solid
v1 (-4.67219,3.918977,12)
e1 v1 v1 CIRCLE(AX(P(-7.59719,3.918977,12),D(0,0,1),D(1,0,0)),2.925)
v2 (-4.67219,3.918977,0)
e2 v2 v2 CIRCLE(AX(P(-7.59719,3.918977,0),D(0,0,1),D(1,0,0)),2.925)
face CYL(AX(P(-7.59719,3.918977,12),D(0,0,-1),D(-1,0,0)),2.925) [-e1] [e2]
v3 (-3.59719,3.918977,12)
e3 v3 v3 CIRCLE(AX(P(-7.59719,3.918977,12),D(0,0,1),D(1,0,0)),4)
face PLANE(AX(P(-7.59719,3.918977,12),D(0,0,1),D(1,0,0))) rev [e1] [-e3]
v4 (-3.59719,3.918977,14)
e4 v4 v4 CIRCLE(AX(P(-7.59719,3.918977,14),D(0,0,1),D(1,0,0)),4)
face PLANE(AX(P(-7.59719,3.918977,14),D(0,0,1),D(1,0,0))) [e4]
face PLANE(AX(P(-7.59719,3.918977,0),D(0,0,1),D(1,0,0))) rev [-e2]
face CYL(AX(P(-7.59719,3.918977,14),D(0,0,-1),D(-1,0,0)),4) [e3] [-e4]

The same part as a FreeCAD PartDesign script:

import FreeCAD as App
import Part
import Sketcher

V = App.Vector

doc = App.newDocument("Part")
body = doc.addObject("PartDesign::Body", "Body")

sketch1 = body.newObject("Sketcher::SketchObject", "Sketch")
sketch1.AttachmentSupport = (doc.getObject("XY_Plane"), [""])
sketch1.MapMode = "FlatFace"
sketch1.addGeometry(Part.Circle(V(-7.6, 3.9, 0), V(0, 0, 1), 2.9), False)
sketch1.addConstraint([
    Sketcher.Constraint("Diameter", 0, 5.85),
    Sketcher.Constraint("DistanceX", 0, 3, -1, 1, 7.59719),
    Sketcher.Constraint("DistanceY", -1, 1, 0, 3, 3.918977),
])
pad1 = body.newObject("PartDesign::Pad", "Pad")
pad1.Profile = sketch1
pad1.Length = 12

sketch2 = body.newObject("Sketcher::SketchObject", "Sketch001")
sketch2.AttachmentSupport = (doc.getObject("XY_Plane"), [""])
sketch2.MapMode = "FlatFace"
sketch2.AttachmentOffset = App.Placement(V(0, 0, 12), App.Rotation())
sketch2.addGeometry(Part.Circle(V(-7.6, 3.9, 0), V(0, 0, 1), 4), False)
sketch2.addConstraint([
    Sketcher.Constraint("Diameter", 0, 8.0),
    Sketcher.Constraint("DistanceX", 0, 3, -1, 1, 7.59719),
    Sketcher.Constraint("DistanceY", -1, 1, 0, 3, 3.918977),
])
pad2 = body.newObject("PartDesign::Pad", "Pad001")
pad2.Profile = sketch2
pad2.Length = 2

doc.recompute()
